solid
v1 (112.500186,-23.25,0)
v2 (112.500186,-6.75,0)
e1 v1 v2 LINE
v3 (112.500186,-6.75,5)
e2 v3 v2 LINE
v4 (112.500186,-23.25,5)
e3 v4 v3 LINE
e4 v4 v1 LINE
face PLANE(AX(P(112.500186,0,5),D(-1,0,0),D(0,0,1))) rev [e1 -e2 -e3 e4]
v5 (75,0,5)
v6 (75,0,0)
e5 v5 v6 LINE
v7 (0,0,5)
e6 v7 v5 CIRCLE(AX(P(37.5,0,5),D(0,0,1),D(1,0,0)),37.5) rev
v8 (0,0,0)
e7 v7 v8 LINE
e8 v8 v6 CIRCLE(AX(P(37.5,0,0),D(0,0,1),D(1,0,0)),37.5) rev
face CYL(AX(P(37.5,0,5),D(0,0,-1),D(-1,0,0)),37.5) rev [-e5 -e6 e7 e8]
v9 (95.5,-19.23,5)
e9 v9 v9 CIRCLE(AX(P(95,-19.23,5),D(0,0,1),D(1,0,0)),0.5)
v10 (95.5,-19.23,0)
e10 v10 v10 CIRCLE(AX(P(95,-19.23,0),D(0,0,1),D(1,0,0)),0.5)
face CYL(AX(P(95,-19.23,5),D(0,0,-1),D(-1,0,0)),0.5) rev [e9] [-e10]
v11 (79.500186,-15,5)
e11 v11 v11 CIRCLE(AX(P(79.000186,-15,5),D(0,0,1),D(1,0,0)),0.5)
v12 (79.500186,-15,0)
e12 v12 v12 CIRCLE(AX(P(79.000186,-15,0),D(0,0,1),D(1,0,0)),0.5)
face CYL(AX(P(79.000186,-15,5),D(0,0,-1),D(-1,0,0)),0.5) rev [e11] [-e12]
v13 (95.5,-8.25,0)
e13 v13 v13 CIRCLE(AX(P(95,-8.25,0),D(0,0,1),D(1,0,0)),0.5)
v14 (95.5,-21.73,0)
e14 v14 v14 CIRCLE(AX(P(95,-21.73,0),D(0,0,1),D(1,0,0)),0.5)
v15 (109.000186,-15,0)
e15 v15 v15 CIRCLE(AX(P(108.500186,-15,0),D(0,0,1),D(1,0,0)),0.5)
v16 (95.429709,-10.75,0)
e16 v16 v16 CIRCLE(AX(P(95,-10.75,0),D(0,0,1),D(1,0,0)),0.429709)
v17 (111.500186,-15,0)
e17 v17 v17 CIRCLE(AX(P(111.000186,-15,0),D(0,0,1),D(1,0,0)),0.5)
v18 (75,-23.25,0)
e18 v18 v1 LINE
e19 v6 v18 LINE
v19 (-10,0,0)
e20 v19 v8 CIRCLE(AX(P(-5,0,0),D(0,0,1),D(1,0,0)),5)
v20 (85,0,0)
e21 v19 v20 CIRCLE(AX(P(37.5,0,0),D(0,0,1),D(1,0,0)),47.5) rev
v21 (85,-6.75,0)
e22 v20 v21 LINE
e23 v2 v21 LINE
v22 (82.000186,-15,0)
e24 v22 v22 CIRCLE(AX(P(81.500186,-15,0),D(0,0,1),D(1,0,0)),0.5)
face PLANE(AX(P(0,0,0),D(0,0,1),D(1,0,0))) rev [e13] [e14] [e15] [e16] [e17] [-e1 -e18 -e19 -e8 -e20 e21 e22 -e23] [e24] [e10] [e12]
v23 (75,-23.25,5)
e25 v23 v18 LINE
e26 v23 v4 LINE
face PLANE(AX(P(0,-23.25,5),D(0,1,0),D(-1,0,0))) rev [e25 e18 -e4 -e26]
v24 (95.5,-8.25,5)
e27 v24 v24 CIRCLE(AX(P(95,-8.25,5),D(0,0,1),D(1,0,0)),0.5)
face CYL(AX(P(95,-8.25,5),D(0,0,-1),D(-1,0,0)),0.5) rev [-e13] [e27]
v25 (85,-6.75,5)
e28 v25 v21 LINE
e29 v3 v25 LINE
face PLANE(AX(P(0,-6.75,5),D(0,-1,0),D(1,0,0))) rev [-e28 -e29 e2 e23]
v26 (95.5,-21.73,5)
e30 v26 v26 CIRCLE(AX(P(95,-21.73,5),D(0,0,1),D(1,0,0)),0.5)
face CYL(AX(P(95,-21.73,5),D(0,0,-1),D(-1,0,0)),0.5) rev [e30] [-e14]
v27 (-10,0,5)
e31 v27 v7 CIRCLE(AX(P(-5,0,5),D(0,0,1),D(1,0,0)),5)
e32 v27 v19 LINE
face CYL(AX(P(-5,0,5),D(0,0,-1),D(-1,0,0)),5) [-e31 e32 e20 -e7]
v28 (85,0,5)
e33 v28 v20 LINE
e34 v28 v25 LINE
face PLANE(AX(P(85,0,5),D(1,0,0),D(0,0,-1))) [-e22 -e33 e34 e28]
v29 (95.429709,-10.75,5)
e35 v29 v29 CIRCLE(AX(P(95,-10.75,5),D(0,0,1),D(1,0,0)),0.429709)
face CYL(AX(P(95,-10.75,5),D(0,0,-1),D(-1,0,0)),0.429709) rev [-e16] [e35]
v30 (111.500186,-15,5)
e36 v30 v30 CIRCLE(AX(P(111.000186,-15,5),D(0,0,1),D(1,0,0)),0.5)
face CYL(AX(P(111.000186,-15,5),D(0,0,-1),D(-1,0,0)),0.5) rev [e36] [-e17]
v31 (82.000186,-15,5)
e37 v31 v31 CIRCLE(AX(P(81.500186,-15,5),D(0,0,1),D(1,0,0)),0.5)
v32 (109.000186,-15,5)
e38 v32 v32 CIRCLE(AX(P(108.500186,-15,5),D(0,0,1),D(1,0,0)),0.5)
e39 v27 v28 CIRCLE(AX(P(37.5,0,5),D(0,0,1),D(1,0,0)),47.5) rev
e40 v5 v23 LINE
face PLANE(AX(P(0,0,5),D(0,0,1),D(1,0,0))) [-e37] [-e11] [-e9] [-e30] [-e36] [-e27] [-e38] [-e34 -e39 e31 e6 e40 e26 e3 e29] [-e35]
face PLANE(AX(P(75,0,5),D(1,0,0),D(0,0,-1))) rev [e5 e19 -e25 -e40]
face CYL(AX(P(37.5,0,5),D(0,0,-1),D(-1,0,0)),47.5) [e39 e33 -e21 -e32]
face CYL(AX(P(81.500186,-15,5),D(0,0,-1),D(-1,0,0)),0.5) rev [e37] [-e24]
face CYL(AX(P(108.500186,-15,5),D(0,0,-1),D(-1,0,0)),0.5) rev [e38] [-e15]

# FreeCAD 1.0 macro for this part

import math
import FreeCAD as App
import Part
import Sketcher
Q = App.Units.Quantity

doc = App.newDocument("Part")
body = doc.addObject("PartDesign::Body", "Body")

sketch1 = body.newObject("Sketcher::SketchObject", "Sketch")
sketch1.AttachmentSupport = (doc.getObject("XY_Plane"), [""])
sketch1.MapMode = "FlatFace"
sketch1.addGeometry([
    Part.LineSegment(App.Vector(85, -6.75, 0), App.Vector(85, 0, 0)),
    Part.ArcOfCircle(Part.Circle(App.Vector(37.5, 0, 0), App.Vector(0, 0, 1), 47.5), math.radians(0), math.radians(180)),
    Part.ArcOfCircle(Part.Circle(App.Vector(-5, 0, 0), App.Vector(0, 0, 1), 5), math.radians(180), math.radians(360)),
    Part.ArcOfCircle(Part.Circle(App.Vector(37.5, 0, 0), App.Vector(0, 0, 1), 37.5), math.radians(0), math.radians(180)),
    Part.LineSegment(App.Vector(75, 0, 0), App.Vector(75, -23.25, 0)),
    Part.LineSegment(App.Vector(75, -23.25, 0), App.Vector(112.5, -23.25, 0)),
    Part.LineSegment(App.Vector(112.5, -23.25, 0), App.Vector(112.5, -6.75, 0)),
    Part.LineSegment(App.Vector(112.5, -6.75, 0), App.Vector(85, -6.75, 0)),
    Part.Circle(App.Vector(111, -15, 0), App.Vector(0, 0, 1), 0.5),
    Part.Circle(App.Vector(108.5, -15, 0), App.Vector(0, 0, 1), 0.5),
    Part.Circle(App.Vector(95, -21.73, 0), App.Vector(0, 0, 1), 0.5),
    Part.Circle(App.Vector(95, -19.23, 0), App.Vector(0, 0, 1), 0.5),
    Part.Circle(App.Vector(81.5, -15, 0), App.Vector(0, 0, 1), 0.5),
    Part.Circle(App.Vector(79, -15, 0), App.Vector(0, 0, 1), 0.5),
    Part.Circle(App.Vector(95, -10.75, 0), App.Vector(0, 0, 1), 0.43),
    Part.Circle(App.Vector(95, -8.25, 0), App.Vector(0, 0, 1), 0.5),
], False)
sketch1.addConstraint([
    Sketcher.Constraint("Tangent", 0, 2, 1, 1),
    Sketcher.Constraint("Tangent", 1, 2, 2, 1),
    Sketcher.Constraint("Tangent", 2, 2, 3, 2),
    Sketcher.Constraint("Tangent", 3, 1, 4, 1),
    Sketcher.Constraint("Coincident", 4, 2, 5, 1),
    Sketcher.Constraint("Coincident", 5, 2, 6, 1),
    Sketcher.Constraint("Coincident", 6, 2, 7, 1),
    Sketcher.Constraint("Coincident", 7, 2, 0, 1),
    Sketcher.Constraint("Vertical", 0),
    Sketcher.Constraint("Vertical", 4),
    Sketcher.Constraint("Horizontal", 5),
    Sketcher.Constraint("Vertical", 6),
    Sketcher.Constraint("Horizontal", 7),
    Sketcher.Constraint("Coincident", 2, 2, -1, 1),
    Sketcher.Constraint("Coincident", 3, 3, 1, 3),
    Sketcher.Constraint("Equal", 8, 9),
    Sketcher.Constraint("Equal", 9, 10),
    Sketcher.Constraint("Equal", 10, 11),
    Sketcher.Constraint("Equal", 11, 12),
    Sketcher.Constraint("Equal", 12, 13),
    Sketcher.Constraint("Equal", 13, 15),
    Sketcher.Constraint("PointOnObject", 1, 3, -1),
    Sketcher.Constraint("Horizontal", 8, 3, 9, 3),
    Sketcher.Constraint("Horizontal", 9, 3, 12, 3),
    Sketcher.Constraint("Horizontal", 12, 3, 13, 3),
    Sketcher.Constraint("Vertical", 10, 3, 11, 3),
    Sketcher.Constraint("Vertical", 11, 3, 14, 3),
    Sketcher.Constraint("Vertical", 14, 3, 15, 3),
    Sketcher.Constraint("Diameter", 8, Q("1 mm")),
    Sketcher.Constraint("Radius", 2, Q("5 mm")),
    Sketcher.Constraint("Radius", 1, Q("47.5 mm")),
    Sketcher.Constraint("DistanceY", 6, 1, 6, 2, Q("16.5 mm")),
    Sketcher.Constraint("DistanceY", 8, 3, -1, 1, Q("15 mm")),
    Sketcher.Constraint("DistanceX", -1, 1, 10, 3, Q("95 mm")),
    Sketcher.Constraint("DistanceX", 12, 3, 9, 3, Q("27 mm")),
    Sketcher.Constraint("DistanceX", 13, 3, 8, 3, Q("32 mm")),
    Sketcher.Constraint("DistanceX", 9, 3, 5, 2, Q("4 mm")),
    Sketcher.Constraint("DistanceY", 14, 3, 6, 2, Q("4 mm")),
    Sketcher.Constraint("DistanceY", 0, 1, 0, 2, Q("6.75 mm")),
    Sketcher.Constraint("DistanceX", 9, 3, 8, 3, Q("2.5 mm")),
    Sketcher.Constraint("DistanceY", 10, 3, 11, 3, Q("2.5 mm")),
    Sketcher.Constraint("DistanceY", 14, 3, 15, 3, Q("2.5 mm")),
    Sketcher.Constraint("Diameter", 14, Q("0.859419 mm")),
    Sketcher.Constraint("DistanceY", 10, 3, -1, 1, Q("21.73 mm")),
    Sketcher.Constraint("DistanceX", 5, 1, 5, 2, Q("37.500186 mm")),
])
pad1 = body.newObject("PartDesign::Pad", "Pad")
pad1.Profile = sketch1
pad1.Length = 5

doc.recompute()
